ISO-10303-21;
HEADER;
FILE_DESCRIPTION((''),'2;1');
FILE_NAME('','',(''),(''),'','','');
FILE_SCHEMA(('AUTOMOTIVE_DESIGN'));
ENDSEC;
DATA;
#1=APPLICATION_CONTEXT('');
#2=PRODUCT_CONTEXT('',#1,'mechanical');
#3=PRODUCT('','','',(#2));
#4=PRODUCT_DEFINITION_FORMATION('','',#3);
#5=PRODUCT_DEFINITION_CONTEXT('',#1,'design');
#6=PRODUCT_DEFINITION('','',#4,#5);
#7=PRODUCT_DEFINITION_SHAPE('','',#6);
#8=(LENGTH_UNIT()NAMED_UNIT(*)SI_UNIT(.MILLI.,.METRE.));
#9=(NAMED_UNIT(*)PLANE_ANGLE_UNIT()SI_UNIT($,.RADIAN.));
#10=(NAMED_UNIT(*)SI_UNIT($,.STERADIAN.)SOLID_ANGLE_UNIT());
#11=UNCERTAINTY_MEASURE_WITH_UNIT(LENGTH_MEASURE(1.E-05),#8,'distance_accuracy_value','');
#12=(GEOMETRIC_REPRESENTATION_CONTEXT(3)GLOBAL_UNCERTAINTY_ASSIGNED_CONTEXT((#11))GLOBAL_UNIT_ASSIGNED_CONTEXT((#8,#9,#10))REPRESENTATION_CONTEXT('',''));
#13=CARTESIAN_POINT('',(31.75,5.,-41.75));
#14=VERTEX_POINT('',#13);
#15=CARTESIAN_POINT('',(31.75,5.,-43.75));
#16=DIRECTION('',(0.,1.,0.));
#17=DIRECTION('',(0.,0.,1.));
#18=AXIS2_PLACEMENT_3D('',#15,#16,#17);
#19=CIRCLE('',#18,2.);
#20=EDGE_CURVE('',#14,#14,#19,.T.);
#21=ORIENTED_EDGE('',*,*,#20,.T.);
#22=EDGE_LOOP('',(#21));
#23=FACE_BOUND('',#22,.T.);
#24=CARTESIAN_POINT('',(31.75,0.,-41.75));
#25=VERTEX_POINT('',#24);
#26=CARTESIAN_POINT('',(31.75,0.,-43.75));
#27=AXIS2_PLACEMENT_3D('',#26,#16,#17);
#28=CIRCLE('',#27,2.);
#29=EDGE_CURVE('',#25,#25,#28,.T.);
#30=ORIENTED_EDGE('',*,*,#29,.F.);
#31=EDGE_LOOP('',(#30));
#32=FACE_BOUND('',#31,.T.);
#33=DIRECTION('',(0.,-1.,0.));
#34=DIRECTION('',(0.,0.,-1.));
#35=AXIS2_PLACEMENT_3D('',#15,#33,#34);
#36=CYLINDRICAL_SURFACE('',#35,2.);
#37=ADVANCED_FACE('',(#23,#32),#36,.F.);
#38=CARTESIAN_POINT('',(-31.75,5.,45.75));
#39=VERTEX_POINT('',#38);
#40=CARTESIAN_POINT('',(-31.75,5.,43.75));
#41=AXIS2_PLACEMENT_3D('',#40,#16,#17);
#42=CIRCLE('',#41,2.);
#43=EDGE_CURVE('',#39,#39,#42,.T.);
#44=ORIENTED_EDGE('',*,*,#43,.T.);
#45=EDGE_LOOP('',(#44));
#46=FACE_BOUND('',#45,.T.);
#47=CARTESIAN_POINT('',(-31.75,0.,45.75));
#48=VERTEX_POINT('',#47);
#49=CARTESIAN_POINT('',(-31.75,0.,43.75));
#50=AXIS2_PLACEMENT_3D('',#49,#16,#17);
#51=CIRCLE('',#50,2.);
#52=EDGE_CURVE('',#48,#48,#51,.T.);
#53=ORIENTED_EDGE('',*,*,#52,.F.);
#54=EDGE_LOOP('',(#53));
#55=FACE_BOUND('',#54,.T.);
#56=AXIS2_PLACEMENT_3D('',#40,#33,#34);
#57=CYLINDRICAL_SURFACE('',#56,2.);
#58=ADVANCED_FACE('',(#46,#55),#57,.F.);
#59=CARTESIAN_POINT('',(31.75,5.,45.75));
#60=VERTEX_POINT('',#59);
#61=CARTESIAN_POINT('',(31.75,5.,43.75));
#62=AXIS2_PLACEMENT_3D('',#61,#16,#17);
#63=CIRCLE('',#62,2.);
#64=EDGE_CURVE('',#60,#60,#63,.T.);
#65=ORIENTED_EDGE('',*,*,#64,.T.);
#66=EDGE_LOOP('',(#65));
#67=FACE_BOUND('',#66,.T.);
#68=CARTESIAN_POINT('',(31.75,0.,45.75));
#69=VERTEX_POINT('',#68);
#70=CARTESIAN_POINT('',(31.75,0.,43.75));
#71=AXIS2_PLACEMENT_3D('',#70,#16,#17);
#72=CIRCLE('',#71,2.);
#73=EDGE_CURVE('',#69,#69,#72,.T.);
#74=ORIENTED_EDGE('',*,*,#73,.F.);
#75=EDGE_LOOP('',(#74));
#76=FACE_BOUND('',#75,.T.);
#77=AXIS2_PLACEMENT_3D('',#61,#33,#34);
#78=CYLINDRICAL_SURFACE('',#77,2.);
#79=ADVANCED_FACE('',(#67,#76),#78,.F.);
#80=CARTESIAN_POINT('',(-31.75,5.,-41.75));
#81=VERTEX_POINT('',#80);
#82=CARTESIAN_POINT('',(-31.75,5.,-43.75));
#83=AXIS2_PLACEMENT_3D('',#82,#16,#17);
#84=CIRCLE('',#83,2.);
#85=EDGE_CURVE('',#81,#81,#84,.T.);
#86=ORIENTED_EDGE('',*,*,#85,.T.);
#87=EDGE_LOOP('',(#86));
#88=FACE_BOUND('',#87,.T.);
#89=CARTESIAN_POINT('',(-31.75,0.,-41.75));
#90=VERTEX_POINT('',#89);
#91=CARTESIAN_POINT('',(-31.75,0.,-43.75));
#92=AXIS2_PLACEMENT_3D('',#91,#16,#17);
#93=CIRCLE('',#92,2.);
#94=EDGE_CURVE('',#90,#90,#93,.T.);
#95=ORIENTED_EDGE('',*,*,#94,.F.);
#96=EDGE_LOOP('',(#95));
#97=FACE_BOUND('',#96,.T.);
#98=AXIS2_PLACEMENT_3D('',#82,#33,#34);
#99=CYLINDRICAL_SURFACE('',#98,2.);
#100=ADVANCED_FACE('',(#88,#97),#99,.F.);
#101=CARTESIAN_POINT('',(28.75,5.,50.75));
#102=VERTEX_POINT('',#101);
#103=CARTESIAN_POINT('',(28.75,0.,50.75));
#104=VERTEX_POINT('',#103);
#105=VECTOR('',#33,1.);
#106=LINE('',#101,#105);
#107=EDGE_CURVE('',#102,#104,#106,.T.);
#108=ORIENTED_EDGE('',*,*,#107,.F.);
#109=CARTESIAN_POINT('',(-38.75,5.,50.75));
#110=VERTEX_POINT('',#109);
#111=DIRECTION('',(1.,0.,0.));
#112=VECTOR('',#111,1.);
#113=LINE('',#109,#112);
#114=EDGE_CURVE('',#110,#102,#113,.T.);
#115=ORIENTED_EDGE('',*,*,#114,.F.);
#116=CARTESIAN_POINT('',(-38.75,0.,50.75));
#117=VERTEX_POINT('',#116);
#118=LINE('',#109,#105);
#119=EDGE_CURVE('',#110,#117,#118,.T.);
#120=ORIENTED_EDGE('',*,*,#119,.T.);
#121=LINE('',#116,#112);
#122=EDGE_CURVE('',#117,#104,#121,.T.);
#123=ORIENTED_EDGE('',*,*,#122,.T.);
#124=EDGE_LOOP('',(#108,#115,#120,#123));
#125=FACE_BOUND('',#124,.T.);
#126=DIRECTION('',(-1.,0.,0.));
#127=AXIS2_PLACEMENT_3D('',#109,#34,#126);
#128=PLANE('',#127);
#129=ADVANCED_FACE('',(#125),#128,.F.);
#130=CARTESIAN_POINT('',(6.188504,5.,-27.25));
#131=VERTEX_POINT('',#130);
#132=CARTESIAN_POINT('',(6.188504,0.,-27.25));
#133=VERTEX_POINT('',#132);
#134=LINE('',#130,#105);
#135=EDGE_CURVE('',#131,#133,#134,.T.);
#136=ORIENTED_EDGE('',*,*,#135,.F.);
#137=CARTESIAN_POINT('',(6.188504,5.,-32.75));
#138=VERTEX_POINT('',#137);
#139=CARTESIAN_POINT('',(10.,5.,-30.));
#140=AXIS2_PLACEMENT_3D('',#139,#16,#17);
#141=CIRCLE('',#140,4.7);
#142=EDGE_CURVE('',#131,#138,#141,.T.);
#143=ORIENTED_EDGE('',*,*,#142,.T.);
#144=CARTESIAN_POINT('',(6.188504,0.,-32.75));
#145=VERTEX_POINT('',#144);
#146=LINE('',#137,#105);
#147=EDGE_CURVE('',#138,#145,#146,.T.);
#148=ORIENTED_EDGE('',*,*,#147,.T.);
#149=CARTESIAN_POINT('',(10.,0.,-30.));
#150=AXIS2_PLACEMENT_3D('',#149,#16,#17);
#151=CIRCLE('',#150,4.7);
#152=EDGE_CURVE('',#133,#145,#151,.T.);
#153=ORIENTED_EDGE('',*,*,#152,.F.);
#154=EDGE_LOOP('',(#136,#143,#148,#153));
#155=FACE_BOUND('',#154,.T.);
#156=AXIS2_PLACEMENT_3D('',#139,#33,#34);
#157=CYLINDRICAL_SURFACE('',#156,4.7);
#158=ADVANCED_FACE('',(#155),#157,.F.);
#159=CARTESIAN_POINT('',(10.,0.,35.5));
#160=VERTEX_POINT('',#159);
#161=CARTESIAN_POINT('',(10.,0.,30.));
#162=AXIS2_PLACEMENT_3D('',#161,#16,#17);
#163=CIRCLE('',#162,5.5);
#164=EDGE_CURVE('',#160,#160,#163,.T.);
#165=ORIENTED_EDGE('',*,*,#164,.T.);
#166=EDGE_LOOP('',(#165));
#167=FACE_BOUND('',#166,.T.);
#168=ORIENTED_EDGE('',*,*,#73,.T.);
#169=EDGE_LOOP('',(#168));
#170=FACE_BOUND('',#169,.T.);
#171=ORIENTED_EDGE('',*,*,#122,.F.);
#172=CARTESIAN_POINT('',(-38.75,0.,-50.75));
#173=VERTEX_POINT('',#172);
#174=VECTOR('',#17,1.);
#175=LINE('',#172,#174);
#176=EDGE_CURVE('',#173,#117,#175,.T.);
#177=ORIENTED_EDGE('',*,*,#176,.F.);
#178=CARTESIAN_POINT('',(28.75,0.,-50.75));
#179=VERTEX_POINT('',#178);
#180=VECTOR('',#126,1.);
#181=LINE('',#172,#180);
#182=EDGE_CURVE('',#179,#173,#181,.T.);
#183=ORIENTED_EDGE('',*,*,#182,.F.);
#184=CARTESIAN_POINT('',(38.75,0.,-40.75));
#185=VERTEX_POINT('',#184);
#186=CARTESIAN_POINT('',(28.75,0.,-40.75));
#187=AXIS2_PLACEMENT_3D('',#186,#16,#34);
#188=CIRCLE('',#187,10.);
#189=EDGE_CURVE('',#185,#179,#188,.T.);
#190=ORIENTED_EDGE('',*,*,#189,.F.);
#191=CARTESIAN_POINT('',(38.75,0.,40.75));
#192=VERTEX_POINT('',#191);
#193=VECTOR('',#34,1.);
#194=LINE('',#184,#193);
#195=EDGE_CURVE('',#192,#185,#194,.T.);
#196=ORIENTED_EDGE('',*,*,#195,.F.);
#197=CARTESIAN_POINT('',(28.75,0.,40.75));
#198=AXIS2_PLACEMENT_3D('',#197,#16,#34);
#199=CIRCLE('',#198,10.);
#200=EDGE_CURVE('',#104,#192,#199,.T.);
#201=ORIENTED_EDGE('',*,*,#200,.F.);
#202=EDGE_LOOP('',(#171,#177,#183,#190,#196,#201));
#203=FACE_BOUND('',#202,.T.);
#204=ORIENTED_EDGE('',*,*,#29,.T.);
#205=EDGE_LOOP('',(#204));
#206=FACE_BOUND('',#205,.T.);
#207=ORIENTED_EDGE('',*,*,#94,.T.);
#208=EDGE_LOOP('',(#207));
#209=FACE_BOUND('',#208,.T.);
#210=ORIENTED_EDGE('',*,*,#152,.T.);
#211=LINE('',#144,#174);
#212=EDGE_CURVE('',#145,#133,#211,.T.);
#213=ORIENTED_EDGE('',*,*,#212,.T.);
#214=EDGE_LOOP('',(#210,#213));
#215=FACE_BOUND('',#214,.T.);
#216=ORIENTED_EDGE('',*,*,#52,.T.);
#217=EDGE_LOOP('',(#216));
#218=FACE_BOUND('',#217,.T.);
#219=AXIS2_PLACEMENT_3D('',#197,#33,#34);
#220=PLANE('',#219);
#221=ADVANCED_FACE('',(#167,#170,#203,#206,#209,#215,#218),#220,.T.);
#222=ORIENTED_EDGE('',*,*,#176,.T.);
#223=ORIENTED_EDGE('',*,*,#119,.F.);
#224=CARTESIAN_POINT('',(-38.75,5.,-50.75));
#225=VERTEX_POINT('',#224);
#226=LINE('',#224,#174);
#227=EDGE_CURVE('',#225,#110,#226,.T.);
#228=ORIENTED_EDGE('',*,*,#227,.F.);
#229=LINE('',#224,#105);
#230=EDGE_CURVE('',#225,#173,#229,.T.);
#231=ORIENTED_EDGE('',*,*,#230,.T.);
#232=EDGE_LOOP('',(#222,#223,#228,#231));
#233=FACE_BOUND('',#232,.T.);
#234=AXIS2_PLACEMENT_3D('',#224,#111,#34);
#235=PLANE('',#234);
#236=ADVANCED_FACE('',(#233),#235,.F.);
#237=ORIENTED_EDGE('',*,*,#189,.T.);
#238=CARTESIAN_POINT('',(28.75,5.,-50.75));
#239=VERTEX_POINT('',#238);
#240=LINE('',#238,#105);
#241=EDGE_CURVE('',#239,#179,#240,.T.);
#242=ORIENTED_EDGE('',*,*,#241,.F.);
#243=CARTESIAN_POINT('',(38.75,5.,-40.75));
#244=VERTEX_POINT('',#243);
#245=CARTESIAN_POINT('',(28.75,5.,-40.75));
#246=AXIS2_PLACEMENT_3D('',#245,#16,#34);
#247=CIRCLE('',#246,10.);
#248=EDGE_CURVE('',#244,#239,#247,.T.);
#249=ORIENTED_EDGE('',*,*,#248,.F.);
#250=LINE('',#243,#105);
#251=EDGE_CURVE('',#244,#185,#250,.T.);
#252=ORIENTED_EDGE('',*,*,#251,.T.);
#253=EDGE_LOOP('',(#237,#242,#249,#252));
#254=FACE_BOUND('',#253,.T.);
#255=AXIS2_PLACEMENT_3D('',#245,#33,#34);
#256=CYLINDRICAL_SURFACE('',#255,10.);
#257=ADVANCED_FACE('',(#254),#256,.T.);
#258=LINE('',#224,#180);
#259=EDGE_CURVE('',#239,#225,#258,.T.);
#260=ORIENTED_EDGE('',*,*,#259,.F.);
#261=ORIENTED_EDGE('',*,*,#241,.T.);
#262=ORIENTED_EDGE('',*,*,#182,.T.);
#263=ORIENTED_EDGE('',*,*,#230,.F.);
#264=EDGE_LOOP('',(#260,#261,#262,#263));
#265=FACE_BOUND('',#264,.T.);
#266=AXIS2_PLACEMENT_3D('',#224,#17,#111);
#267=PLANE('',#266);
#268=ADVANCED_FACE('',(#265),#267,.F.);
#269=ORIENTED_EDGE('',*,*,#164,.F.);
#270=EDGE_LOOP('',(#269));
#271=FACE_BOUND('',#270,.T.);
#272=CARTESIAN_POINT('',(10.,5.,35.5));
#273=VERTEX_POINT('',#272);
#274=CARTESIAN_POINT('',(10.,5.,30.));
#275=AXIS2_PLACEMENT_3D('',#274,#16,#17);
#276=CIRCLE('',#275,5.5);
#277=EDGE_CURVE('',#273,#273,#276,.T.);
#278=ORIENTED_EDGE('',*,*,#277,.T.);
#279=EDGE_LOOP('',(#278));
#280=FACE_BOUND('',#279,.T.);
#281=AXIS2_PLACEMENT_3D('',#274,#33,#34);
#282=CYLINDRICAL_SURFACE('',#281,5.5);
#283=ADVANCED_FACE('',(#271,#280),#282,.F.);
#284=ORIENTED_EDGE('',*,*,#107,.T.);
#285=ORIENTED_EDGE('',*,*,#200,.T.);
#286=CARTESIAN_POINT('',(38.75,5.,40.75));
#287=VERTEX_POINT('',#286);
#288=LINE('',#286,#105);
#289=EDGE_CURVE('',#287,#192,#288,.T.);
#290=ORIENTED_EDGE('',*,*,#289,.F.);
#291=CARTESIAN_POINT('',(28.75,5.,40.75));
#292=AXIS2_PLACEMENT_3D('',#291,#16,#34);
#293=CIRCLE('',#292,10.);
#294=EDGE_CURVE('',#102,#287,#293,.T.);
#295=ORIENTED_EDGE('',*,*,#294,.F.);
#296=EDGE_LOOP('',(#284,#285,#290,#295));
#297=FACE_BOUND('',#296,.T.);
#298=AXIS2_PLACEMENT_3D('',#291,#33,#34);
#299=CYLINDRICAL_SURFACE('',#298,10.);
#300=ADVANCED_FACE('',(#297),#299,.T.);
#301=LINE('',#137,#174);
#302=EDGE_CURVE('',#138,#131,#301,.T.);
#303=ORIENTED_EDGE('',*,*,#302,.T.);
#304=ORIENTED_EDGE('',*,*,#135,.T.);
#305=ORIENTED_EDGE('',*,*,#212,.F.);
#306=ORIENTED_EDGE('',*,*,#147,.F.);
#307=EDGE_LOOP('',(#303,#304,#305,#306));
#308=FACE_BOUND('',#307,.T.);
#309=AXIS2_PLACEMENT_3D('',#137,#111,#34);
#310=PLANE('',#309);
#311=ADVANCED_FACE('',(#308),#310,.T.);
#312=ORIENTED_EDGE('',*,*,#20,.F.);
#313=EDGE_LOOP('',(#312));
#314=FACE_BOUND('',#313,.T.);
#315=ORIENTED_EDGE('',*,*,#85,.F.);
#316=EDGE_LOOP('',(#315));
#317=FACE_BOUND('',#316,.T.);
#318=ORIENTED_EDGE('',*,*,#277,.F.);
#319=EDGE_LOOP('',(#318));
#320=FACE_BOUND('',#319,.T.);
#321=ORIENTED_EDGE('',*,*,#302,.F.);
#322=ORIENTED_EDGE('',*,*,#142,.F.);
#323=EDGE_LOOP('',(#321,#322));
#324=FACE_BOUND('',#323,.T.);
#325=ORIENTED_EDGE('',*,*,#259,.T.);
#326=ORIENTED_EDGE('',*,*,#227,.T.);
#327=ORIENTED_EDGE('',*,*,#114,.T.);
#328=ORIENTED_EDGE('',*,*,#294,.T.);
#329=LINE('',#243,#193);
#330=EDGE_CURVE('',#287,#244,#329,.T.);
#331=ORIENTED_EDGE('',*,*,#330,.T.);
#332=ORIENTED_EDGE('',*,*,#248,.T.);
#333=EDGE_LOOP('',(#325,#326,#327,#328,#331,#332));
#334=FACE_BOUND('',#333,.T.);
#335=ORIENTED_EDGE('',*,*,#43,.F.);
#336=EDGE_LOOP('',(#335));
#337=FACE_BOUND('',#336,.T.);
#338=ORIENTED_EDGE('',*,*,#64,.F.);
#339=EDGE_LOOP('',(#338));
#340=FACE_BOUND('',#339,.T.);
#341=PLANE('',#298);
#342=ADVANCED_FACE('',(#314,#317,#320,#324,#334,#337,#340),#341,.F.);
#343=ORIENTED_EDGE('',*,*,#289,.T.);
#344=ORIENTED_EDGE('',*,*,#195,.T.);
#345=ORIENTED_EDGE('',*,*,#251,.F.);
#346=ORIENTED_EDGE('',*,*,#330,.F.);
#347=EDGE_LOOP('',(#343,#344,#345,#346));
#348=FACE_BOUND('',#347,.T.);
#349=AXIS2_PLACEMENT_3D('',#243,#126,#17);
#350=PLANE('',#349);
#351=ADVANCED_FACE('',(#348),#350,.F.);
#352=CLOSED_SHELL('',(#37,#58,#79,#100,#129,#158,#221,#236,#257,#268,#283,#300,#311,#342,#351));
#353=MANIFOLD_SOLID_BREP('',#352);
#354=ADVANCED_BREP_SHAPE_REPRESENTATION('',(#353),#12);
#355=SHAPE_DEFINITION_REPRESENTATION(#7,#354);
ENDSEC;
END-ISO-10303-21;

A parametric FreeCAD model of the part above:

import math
import FreeCAD as App
import Part
import Sketcher

doc = App.newDocument("Part")
params = doc.addObject("Spreadsheet::Sheet", "Params")
for row, (alias, value) in enumerate([
    ("sketch1_diameter", "4 mm"),
    ("sketch1_diameter2", "11 mm"),
    ("sketch1_radius", "10 mm"),
    ("sketch1_radius2", "4.7 mm"),
    ("sketch1_width", "67.5 mm"),
    ("pad1_length", "5 mm"),
], start=1):
    params.set(f"A{row}", alias)
    params.set(f"B{row}", "=" + value)
    params.setAlias(f"B{row}", alias)

body = doc.addObject("PartDesign::Body", "Body")

sketch1 = body.newObject("Sketcher::SketchObject", "Sketch")
sketch1.AttachmentSupport = (doc.getObject("XZ_Plane"), [""])
sketch1.MapMode = "FlatFace"
sketch1.addGeometry([
    Part.LineSegment(App.Vector(28.8, -50.8, 0), App.Vector(-38.8, -50.8, 0)),
    Part.LineSegment(App.Vector(-38.8, -50.8, 0), App.Vector(-38.8, 50.8, 0)),
    Part.LineSegment(App.Vector(-38.8, 50.8, 0), App.Vector(28.8, 50.8, 0)),
    Part.ArcOfCircle(Part.Circle(App.Vector(28.8, 40.8, 0), App.Vector(0, 0, 1), 10), math.radians(0), math.radians(90)),
    Part.LineSegment(App.Vector(38.8, 40.8, 0), App.Vector(38.8, -40.8, 0)),
    Part.ArcOfCircle(Part.Circle(App.Vector(28.8, -40.8, 0), App.Vector(0, 0, 1), 10), math.radians(-90), math.radians(0)),
    Part.Circle(App.Vector(31.8, 43.8, 0), App.Vector(0, 0, 1), 2),
    Part.Circle(App.Vector(10, 30, 0), App.Vector(0, 0, 1), 5.5),
    Part.Circle(App.Vector(-31.8, 43.8, 0), App.Vector(0, 0, 1), 2),
    Part.Circle(App.Vector(31.8, -43.8, 0), App.Vector(0, 0, 1), 2),
    Part.ArcOfCircle(Part.Circle(App.Vector(10, -30, 0), App.Vector(0, 0, 1), 4.7), math.radians(-144), math.radians(144)),
    Part.LineSegment(App.Vector(6.2, -27.2, 0), App.Vector(6.2, -32.8, 0)),
    Part.Circle(App.Vector(-31.8, -43.8, 0), App.Vector(0, 0, 1), 2),
], False)
sketch1.addConstraint([
    Sketcher.Constraint("Coincident", 0, 2, 1, 1),
    Sketcher.Constraint("Coincident", 1, 2, 2, 1),
    Sketcher.Constraint("Tangent", 2, 2, 3, 2),
    Sketcher.Constraint("Tangent", 3, 1, 4, 1),
    Sketcher.Constraint("Tangent", 4, 2, 5, 2),
    Sketcher.Constraint("Tangent", 5, 1, 0, 1),
    Sketcher.Constraint("Coincident", 10, 1, 11, 2),
    Sketcher.Constraint("Coincident", 11, 1, 10, 2),
    Sketcher.Constraint("Horizontal", 0),
    Sketcher.Constraint("Vertical", 1),
    Sketcher.Constraint("Horizontal", 2),
    Sketcher.Constraint("Vertical", 4),
    Sketcher.Constraint("Vertical", 11),
    Sketcher.Constraint("Equal", 3, 5),
    Sketcher.Constraint("Equal", 6, 8),
    Sketcher.Constraint("Equal", 8, 9),
    Sketcher.Constraint("Equal", 9, 12),
    Sketcher.Constraint("Symmetric", 8, 3, 9, 3, -1, 1),
    Sketcher.Constraint("Symmetric", 6, 3, 12, 3, -1, 1),
    Sketcher.Constraint("Symmetric", 6, 3, 8, 3, -2),
    Sketcher.Constraint("Symmetric", 7, 3, 10, 3, -1),
    Sketcher.Constraint("Diameter", 6, 4.0),
    Sketcher.Constraint("Diameter", 7, 11.0),
    Sketcher.Constraint("Radius", 3, 10.0),
    Sketcher.Constraint("Radius", 10, 4.7),
    Sketcher.Constraint("DistanceX", 0, 2, 0, 1, 67.5),
    Sketcher.Constraint("DistanceY", 1, 1, 1, 2, 101.5),
    Sketcher.Constraint("DistanceY", 11, 2, 11, 1, 5.5),
    Sketcher.Constraint("DistanceX", -1, 1, 7, 3, 10.0),
    Sketcher.Constraint("DistanceY", -1, 1, 7, 3, 30.0),
    Sketcher.Constraint("DistanceX", 3, 3, 6, 3, 3.0),
    Sketcher.Constraint("DistanceY", 3, 3, 6, 3, 3.0),
    Sketcher.Constraint("DistanceY", 9, 3, 5, 3, 3.0),
    Sketcher.Constraint("DistanceX", 0, 2, 12, 3, 7.0),
])
sketch1.setExpression("Constraints[21]", "Params.sketch1_diameter")
sketch1.setExpression("Constraints[22]", "Params.sketch1_diameter2")
sketch1.setExpression("Constraints[23]", "Params.sketch1_radius")
sketch1.setExpression("Constraints[24]", "Params.sketch1_radius2")
sketch1.setExpression("Constraints[25]", "Params.sketch1_width")
pad1 = body.newObject("PartDesign::Pad", "Pad")
pad1.Profile = sketch1
pad1.setExpression("Length", "Params.pad1_length")
pad1.Reversed = True

doc.recompute()
